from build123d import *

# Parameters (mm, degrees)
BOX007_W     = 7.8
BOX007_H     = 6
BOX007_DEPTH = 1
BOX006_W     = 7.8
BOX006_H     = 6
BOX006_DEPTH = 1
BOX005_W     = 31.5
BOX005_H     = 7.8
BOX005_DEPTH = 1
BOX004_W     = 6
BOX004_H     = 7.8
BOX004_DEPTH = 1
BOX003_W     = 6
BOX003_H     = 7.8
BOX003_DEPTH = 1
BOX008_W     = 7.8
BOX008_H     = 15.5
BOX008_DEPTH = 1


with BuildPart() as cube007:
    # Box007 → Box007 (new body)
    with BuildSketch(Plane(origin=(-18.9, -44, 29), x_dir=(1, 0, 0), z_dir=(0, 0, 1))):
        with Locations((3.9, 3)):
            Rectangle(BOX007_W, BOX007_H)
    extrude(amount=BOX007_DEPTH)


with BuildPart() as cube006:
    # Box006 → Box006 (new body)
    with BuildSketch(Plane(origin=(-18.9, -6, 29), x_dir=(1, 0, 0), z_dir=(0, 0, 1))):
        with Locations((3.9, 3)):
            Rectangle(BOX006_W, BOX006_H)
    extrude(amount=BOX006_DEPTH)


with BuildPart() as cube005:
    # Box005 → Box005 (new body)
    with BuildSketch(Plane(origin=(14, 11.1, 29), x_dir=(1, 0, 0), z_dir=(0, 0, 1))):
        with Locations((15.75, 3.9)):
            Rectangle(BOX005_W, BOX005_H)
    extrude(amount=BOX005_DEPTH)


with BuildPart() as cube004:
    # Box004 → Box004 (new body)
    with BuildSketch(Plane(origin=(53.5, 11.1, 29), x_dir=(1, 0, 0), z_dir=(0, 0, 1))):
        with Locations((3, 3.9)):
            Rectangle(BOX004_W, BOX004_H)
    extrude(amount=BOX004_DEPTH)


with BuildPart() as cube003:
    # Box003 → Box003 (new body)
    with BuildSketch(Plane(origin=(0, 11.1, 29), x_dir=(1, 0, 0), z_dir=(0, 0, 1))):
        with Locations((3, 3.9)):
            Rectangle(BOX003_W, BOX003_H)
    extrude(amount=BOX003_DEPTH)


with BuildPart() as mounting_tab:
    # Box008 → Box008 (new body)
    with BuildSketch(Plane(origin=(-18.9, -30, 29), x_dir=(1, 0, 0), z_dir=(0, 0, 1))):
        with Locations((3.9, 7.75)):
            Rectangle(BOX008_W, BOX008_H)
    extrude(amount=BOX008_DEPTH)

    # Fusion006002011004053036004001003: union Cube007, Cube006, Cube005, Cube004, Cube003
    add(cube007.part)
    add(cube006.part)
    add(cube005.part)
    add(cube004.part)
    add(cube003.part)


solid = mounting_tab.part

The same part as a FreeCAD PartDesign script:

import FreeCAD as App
import Part
import Sketcher

V = App.Vector


def add_polygon(sketch, points):
    """Adds a closed chain of lines whose ends are joined by coincident constraints."""
    first, n = sketch.GeometryCount, len(points)
    for a, b in zip(points, points[1:] + points[:1]):
        sketch.addGeometry(Part.LineSegment(App.Vector(*a, 0), App.Vector(*b, 0)), False)
    for i in range(n):
        sketch.addConstraint(Sketcher.Constraint("Coincident", first + i, 2, first + (i + 1) % n, 1))

doc = App.newDocument("Part")
params = doc.addObject("Spreadsheet::Sheet", "Params")
for row, (alias, value) in enumerate([
    ("sketch1_height", "6 mm"),
    ("sketch1_width", "7.8 mm"),
    ("pad1_length", "1 mm"),
    ("sketch2_height", "6 mm"),
    ("sketch2_width", "7.8 mm"),
    ("pad2_length", "1 mm"),
    ("sketch3_width", "31.5 mm"),
    ("sketch3_height", "7.8 mm"),
    ("pad3_length", "1 mm"),
    ("sketch4_width", "6 mm"),
    ("sketch4_height", "7.8 mm"),
    ("pad4_length", "1 mm"),
    ("sketch5_width", "6 mm"),
    ("sketch5_height", "7.8 mm"),
    ("pad5_length", "1 mm"),
    ("sketch6_width", "7.8 mm"),
    ("sketch6_height", "15.5 mm"),
    ("pad6_length", "1 mm"),
], start=1):
    params.set(f"A{row}", alias)
    params.set(f"B{row}", "=" + value)
    params.setAlias(f"B{row}", alias)

body = doc.addObject("PartDesign::Body", "Body")

sketch1 = body.newObject("Sketcher::SketchObject", "Sketch")
sketch1.AttachmentSupport = (doc.getObject("XY_Plane"), [""])
sketch1.MapMode = "FlatFace"
sketch1.AttachmentOffset = App.Placement(V(0, 0, 29), App.Rotation())
add_polygon(sketch1, [(-19, -38), (-19, -44), (-11, -44), (-11, -38)])
sketch1.addConstraint([
    Sketcher.Constraint("Vertical", 0),
    Sketcher.Constraint("Horizontal", 1),
    Sketcher.Constraint("Vertical", 2),
    Sketcher.Constraint("Horizontal", 3),
    Sketcher.Constraint("DistanceY", 0, 2, 0, 1, 6.0),
    Sketcher.Constraint("DistanceX", 1, 1, 1, 2, 7.8),
    Sketcher.Constraint("DistanceY", 0, 2, -1, 1, 44.0),
    Sketcher.Constraint("DistanceX", 0, 2, -1, 1, 18.9),
])
sketch1.setExpression("Constraints[8]", "Params.sketch1_height")
sketch1.setExpression("Constraints[9]", "Params.sketch1_width")
pad1 = body.newObject("PartDesign::Pad", "Pad")
pad1.Profile = sketch1
pad1.setExpression("Length", "Params.pad1_length")
body2 = doc.addObject("PartDesign::Body", "Body001")

sketch2 = body2.newObject("Sketcher::SketchObject", "Sketch001")
sketch2.AttachmentSupport = (doc.getObject("XY_Plane001"), [""])
sketch2.MapMode = "FlatFace"
sketch2.AttachmentOffset = App.Placement(V(0, 0, 29), App.Rotation())
add_polygon(sketch2, [(-19, 0), (-19, -6), (-11, -6), (-11, 0)])
sketch2.addConstraint([
    Sketcher.Constraint("Vertical", 0),
    Sketcher.Constraint("Horizontal", 1),
    Sketcher.Constraint("Vertical", 2),
    Sketcher.Constraint("Horizontal", 3),
    Sketcher.Constraint("PointOnObject", 2, 2, -1),
    Sketcher.Constraint("DistanceY", 0, 2, 0, 1, 6.0),
    Sketcher.Constraint("DistanceX", 1, 1, 1, 2, 7.8),
    Sketcher.Constraint("DistanceX", 0, 2, -1, 1, 18.9),
])
sketch2.setExpression("Constraints[9]", "Params.sketch2_height")
sketch2.setExpression("Constraints[10]", "Params.sketch2_width")
pad2 = body2.newObject("PartDesign::Pad", "Pad001")
pad2.Profile = sketch2
pad2.setExpression("Length", "Params.pad2_length")
body3 = doc.addObject("PartDesign::Body", "Body002")

sketch3 = body3.newObject("Sketcher::SketchObject", "Sketch002")
sketch3.AttachmentSupport = (doc.getObject("XY_Plane002"), [""])
sketch3.MapMode = "FlatFace"
sketch3.AttachmentOffset = App.Placement(V(0, 0, 29), App.Rotation())
add_polygon(sketch3, [(14, 19), (14, 11), (46, 11), (46, 19)])
sketch3.addConstraint([
    Sketcher.Constraint("Vertical", 0),
    Sketcher.Constraint("Horizontal", 1),
    Sketcher.Constraint("Vertical", 2),
    Sketcher.Constraint("Horizontal", 3),
    Sketcher.Constraint("DistanceX", 1, 1, 1, 2, 31.5),
    Sketcher.Constraint("DistanceY", 0, 2, 0, 1, 7.8),
    Sketcher.Constraint("DistanceX", -1, 1, 0, 2, 14.0),
    Sketcher.Constraint("DistanceY", -1, 1, 0, 2, 11.1),
])
sketch3.setExpression("Constraints[8]", "Params.sketch3_width")
sketch3.setExpression("Constraints[9]", "Params.sketch3_height")
pad3 = body3.newObject("PartDesign::Pad", "Pad002")
pad3.Profile = sketch3
pad3.setExpression("Length", "Params.pad3_length")
body4 = doc.addObject("PartDesign::Body", "Body003")

sketch4 = body4.newObject("Sketcher::SketchObject", "Sketch003")
sketch4.AttachmentSupport = (doc.getObject("XY_Plane003"), [""])
sketch4.MapMode = "FlatFace"
sketch4.AttachmentOffset = App.Placement(V(0, 0, 29), App.Rotation())
add_polygon(sketch4, [(54, 19), (54, 11), (60, 11), (60, 19)])
sketch4.addConstraint([
    Sketcher.Constraint("Vertical", 0),
    Sketcher.Constraint("Horizontal", 1),
    Sketcher.Constraint("Vertical", 2),
    Sketcher.Constraint("Horizontal", 3),
    Sketcher.Constraint("DistanceX", 1, 1, 1, 2, 6.0),
    Sketcher.Constraint("DistanceY", 0, 2, 0, 1, 7.8),
    Sketcher.Constraint("DistanceX", -1, 1, 0, 2, 53.5),
    Sketcher.Constraint("DistanceY", -1, 1, 0, 2, 11.1),
])
sketch4.setExpression("Constraints[8]", "Params.sketch4_width")
sketch4.setExpression("Constraints[9]", "Params.sketch4_height")
pad4 = body4.newObject("PartDesign::Pad", "Pad003")
pad4.Profile = sketch4
pad4.setExpression("Length", "Params.pad4_length")
body5 = doc.addObject("PartDesign::Body", "Body004")

sketch5 = body5.newObject("Sketcher::SketchObject", "Sketch004")
sketch5.AttachmentSupport = (doc.getObject("XY_Plane004"), [""])
sketch5.MapMode = "FlatFace"
sketch5.AttachmentOffset = App.Placement(V(0, 0, 29), App.Rotation())
add_polygon(sketch5, [(0, 19), (0, 11), (6, 11), (6, 19)])
sketch5.addConstraint([
    Sketcher.Constraint("Vertical", 0),
    Sketcher.Constraint("Horizontal", 1),
    Sketcher.Constraint("Vertical", 2),
    Sketcher.Constraint("Horizontal", 3),
    Sketcher.Constraint("PointOnObject", 0, 2, -2),
    Sketcher.Constraint("DistanceX", 1, 1, 1, 2, 6.0),
    Sketcher.Constraint("DistanceY", 0, 2, 0, 1, 7.8),
    Sketcher.Constraint("DistanceY", -1, 1, 0, 2, 11.1),
])
sketch5.setExpression("Constraints[9]", "Params.sketch5_width")
sketch5.setExpression("Constraints[10]", "Params.sketch5_height")
pad5 = body5.newObject("PartDesign::Pad", "Pad004")
pad5.Profile = sketch5
pad5.setExpression("Length", "Params.pad5_length")
body6 = doc.addObject("PartDesign::Body", "Body005")
body6.AllowCompound = True

sketch6 = body6.newObject("Sketcher::SketchObject", "Sketch005")
sketch6.AttachmentSupport = (doc.getObject("XY_Plane005"), [""])
sketch6.MapMode = "FlatFace"
sketch6.AttachmentOffset = App.Placement(V(0, 0, 29), App.Rotation())
add_polygon(sketch6, [(-19, -14), (-19, -30), (-11, -30), (-11, -14)])
sketch6.addConstraint([
    Sketcher.Constraint("Vertical", 0),
    Sketcher.Constraint("Horizontal", 1),
    Sketcher.Constraint("Vertical", 2),
    Sketcher.Constraint("Horizontal", 3),
    Sketcher.Constraint("DistanceX", 1, 1, 1, 2, 7.8),
    Sketcher.Constraint("DistanceY", 0, 2, 0, 1, 15.5),
    Sketcher.Constraint("DistanceY", 0, 2, -1, 1, 30.0),
    Sketcher.Constraint("DistanceX", 0, 2, -1, 1, 18.9),
])
sketch6.setExpression("Constraints[8]", "Params.sketch6_width")
sketch6.setExpression("Constraints[9]", "Params.sketch6_height")
pad6 = body6.newObject("PartDesign::Pad", "Pad005")
pad6.Profile = sketch6
pad6.setExpression("Length", "Params.pad6_length")
doc.recompute()

boolean = body6.newObject("PartDesign::Boolean", "Boolean")
boolean.Type = "Fuse"
boolean.addObjects([body])
doc.recompute()

boolean2 = body6.newObject("PartDesign::Boolean", "Boolean001")
boolean2.Type = "Fuse"
boolean2.addObjects([body2])
doc.recompute()

boolean3 = body6.newObject("PartDesign::Boolean", "Boolean002")
boolean3.Type = "Fuse"
boolean3.addObjects([body3])
doc.recompute()

boolean4 = body6.newObject("PartDesign::Boolean", "Boolean003")
boolean4.Type = "Fuse"
boolean4.addObjects([body4])
doc.recompute()

boolean5 = body6.newObject("PartDesign::Boolean", "Boolean004")
boolean5.Type = "Fuse"
boolean5.addObjects([body5])

doc.recompute()
